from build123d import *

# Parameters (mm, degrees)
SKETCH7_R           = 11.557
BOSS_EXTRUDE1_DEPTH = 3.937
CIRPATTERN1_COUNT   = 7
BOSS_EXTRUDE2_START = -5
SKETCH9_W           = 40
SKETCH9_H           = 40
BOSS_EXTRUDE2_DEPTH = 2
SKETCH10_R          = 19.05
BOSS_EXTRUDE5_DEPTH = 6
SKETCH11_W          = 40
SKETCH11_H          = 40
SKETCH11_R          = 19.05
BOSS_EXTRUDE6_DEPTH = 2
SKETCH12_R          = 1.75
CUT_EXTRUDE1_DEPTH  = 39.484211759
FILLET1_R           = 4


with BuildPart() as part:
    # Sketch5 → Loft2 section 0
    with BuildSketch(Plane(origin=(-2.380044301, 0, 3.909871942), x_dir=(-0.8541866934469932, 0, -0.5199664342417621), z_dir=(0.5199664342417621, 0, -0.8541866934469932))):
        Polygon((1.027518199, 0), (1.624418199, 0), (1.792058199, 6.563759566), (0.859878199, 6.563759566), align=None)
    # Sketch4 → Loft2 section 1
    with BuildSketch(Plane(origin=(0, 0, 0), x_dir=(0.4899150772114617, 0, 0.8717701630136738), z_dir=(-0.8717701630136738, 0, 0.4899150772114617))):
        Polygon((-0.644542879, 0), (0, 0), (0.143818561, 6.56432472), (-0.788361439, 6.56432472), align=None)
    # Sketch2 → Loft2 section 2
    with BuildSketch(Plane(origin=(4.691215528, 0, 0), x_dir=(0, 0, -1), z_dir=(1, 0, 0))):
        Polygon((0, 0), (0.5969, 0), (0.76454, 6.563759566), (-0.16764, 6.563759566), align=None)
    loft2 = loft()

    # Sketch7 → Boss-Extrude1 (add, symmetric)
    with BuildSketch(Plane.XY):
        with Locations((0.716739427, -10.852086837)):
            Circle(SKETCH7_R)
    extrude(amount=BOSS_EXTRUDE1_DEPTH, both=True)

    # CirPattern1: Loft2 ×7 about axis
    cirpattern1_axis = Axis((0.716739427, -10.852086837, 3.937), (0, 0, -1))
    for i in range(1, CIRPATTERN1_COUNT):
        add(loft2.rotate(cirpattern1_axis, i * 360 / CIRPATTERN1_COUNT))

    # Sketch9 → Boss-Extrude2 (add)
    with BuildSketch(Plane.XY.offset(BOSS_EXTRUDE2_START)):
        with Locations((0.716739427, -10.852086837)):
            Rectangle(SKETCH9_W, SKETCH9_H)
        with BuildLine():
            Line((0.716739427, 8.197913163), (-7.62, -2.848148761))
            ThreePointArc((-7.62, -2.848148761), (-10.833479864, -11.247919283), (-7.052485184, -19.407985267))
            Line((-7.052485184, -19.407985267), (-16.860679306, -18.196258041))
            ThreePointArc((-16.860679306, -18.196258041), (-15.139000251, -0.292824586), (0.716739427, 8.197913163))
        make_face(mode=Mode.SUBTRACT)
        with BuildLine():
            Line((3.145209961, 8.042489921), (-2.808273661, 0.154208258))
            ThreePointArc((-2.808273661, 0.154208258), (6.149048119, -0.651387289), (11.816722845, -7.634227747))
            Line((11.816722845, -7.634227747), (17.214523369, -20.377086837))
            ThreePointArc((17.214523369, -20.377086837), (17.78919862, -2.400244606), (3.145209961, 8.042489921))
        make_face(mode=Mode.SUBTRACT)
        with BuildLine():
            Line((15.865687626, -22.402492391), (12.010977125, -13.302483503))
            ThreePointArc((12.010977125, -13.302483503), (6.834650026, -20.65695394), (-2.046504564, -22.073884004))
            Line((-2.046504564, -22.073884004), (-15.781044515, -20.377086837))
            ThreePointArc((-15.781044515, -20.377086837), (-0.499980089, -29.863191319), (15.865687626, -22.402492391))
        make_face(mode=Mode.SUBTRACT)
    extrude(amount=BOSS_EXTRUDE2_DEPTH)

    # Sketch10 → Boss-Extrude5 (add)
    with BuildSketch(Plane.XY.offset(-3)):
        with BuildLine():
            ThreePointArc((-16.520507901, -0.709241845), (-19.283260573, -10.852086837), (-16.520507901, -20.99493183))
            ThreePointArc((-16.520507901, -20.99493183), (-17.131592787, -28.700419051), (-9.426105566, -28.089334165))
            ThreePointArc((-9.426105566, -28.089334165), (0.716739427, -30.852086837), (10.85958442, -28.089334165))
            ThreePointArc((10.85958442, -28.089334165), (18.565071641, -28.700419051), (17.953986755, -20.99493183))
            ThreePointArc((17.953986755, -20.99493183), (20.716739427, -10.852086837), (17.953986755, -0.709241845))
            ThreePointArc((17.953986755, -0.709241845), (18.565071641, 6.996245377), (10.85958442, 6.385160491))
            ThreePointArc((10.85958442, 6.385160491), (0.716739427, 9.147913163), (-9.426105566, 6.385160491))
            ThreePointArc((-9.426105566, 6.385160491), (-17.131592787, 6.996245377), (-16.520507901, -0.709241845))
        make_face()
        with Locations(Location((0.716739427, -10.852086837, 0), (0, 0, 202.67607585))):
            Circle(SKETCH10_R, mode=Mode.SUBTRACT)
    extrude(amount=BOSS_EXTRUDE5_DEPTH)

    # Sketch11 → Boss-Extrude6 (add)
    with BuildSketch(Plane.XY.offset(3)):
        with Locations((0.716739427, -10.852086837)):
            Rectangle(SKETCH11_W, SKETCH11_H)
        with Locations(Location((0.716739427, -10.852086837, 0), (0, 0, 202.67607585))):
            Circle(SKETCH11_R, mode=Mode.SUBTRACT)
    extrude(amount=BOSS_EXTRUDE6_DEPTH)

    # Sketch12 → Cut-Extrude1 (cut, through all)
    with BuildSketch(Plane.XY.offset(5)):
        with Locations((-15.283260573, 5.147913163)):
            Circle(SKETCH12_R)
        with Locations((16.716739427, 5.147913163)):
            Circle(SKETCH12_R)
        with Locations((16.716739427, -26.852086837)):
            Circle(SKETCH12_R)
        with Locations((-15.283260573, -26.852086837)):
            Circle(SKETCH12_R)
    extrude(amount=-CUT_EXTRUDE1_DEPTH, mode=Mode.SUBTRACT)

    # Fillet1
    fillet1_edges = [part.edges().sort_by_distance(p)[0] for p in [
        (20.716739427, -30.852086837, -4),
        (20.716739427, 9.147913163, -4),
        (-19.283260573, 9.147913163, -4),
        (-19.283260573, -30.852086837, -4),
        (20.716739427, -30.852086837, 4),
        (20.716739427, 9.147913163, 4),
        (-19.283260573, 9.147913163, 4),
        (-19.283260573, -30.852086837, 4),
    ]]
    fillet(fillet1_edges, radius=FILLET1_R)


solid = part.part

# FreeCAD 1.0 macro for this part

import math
import FreeCAD as App
import Part
import Sketcher
from FreeCAD import Vector
Q = App.Units.Quantity


def edges_at(feature, points):
    """Names of the edges that pass closest to the given points."""
    edges = feature.Shape.Edges
    near = lambda p: min(range(len(edges)), key=lambda i: edges[i].distToShape(Part.Vertex(*p))[0])
    return sorted({f"Edge{near(p) + 1}" for p in points})

doc = App.newDocument("Part")
body = doc.addObject("PartDesign::Body", "Body")

# Sketch on an angled plane
sketch1 = body.newObject("Sketcher::SketchObject", "Sketch")
sketch1.Placement = App.Placement(Vector(-2.380044, 0, 3.909872), App.Rotation(Vector(-0.854186693, 0, -0.519966434), Vector(0, 0.999999999, 0), Vector(0.519966434, 0, -0.854186693), "ZXY"))
sketch1.addGeometry([
    Part.LineSegment(Vector(1, 0, 0), Vector(1.6, 0, 0)),
    Part.LineSegment(Vector(1.6, 0, 0), Vector(1.8, 6.6, 0)),
    Part.LineSegment(Vector(1.8, 6.6, 0), Vector(0.9, 6.6, 0)),
    Part.LineSegment(Vector(0.9, 6.6, 0), Vector(1, 0, 0)),
], False)
sketch1.addConstraint([
    Sketcher.Constraint("Coincident", 0, 2, 1, 1),
    Sketcher.Constraint("Coincident", 1, 2, 2, 1),
    Sketcher.Constraint("Coincident", 2, 2, 3, 1),
    Sketcher.Constraint("Coincident", 3, 2, 0, 1),
    Sketcher.Constraint("Horizontal", 0),
    Sketcher.Constraint("Horizontal", 2),
    Sketcher.Constraint("PointOnObject", 0, 2, -1),
    Sketcher.Constraint("Equal", 1, 3),
    Sketcher.Constraint("DistanceX", 0, 1, 0, 2, Q("0.5969 mm")),
    Sketcher.Constraint("Distance", 1, Q("6.5659 mm")),
    Sketcher.Constraint("DistanceX", 2, 2, 2, 1, Q("0.93218 mm")),
    Sketcher.Constraint("DistanceX", -1, 1, 0, 2, Q("1.624418 mm")),
])

# Sketch on an angled plane
sketch2 = body.newObject("Sketcher::SketchObject", "Sketch001")
sketch2.Placement = App.Placement(Vector(0, 0, 0), App.Rotation(Vector(0.489915077, 0, 0.871770163), Vector(0, 1, 0), Vector(-0.871770163, 0, 0.489915077), "ZXY"))
sketch2.addGeometry([
    Part.LineSegment(Vector(-0.6, 0, 0), Vector(0, 0, 0)),
    Part.LineSegment(Vector(0, 0, 0), Vector(0.1, 6.6, 0)),
    Part.LineSegment(Vector(0.1, 6.6, 0), Vector(-0.8, 6.6, 0)),
    Part.LineSegment(Vector(-0.8, 6.6, 0), Vector(-0.6, 0, 0)),
], False)
sketch2.addConstraint([
    Sketcher.Constraint("Coincident", 0, 2, 1, 1),
    Sketcher.Constraint("Coincident", 1, 2, 2, 1),
    Sketcher.Constraint("Coincident", 2, 2, 3, 1),
    Sketcher.Constraint("Coincident", 3, 2, 0, 1),
    Sketcher.Constraint("Horizontal", 0),
    Sketcher.Constraint("Horizontal", 2),
    Sketcher.Constraint("Coincident", 0, 2, -1, 1),
    Sketcher.Constraint("Equal", 1, 3),
    Sketcher.Constraint("Distance", 1, Q("6.5659 mm")),
    Sketcher.Constraint("DistanceX", 2, 2, 2, 1, Q("0.93218 mm")),
    Sketcher.Constraint("DistanceX", 0, 1, 0, 2, Q("0.644543 mm")),
])

# Sketch on YZ plane
sketch3 = body.newObject("Sketcher::SketchObject", "Sketch002")
sketch3.AttachmentSupport = (doc.getObject("YZ_Plane"), [""])
sketch3.MapMode = "FlatFace"
sketch3.AttachmentOffset = App.Placement(Vector(0, 0, 4.691216), App.Rotation())
sketch3.addGeometry([
    Part.LineSegment(Vector(0, 0, 0), Vector(0, -0.6, 0)),
    Part.LineSegment(Vector(0, -0.6, 0), Vector(6.6, -0.8, 0)),
    Part.LineSegment(Vector(6.6, -0.8, 0), Vector(6.6, 0.2, 0)),
    Part.LineSegment(Vector(6.6, 0.2, 0), Vector(0, 0, 0)),
], False)
sketch3.addConstraint([
    Sketcher.Constraint("Coincident", 0, 2, 1, 1),
    Sketcher.Constraint("Coincident", 1, 2, 2, 1),
    Sketcher.Constraint("Coincident", 2, 2, 3, 1),
    Sketcher.Constraint("Coincident", 3, 2, 0, 1),
    Sketcher.Constraint("Vertical", 0),
    Sketcher.Constraint("Vertical", 2),
    Sketcher.Constraint("Coincident", 3, 2, -1, 1),
    Sketcher.Constraint("Equal", 1, 3),
    Sketcher.Constraint("DistanceY", 0, 2, 0, 1, Q("0.5969 mm")),
    Sketcher.Constraint("Distance", 1, Q("6.5659 mm")),
    Sketcher.Constraint("DistanceY", 2, 1, 2, 2, Q("0.93218 mm")),
])

additiveloft = body.newObject("PartDesign::AdditiveLoft", "AdditiveLoft")
additiveloft.Profile = sketch1
additiveloft.Sections = [sketch2, sketch3]

# Sketch on XY plane
sketch4 = body.newObject("Sketcher::SketchObject", "Sketch003")
sketch4.AttachmentSupport = (doc.getObject("XY_Plane"), [""])
sketch4.MapMode = "FlatFace"
sketch4.addGeometry(Part.Circle(Vector(1, -11, 0), Vector(0, 0, 1), 12), False)
sketch4.addConstraint([
    Sketcher.Constraint("Diameter", 0, Q("23.114 mm")),
    Sketcher.Constraint("DistanceX", -1, 1, 0, 3, Q("0.716739 mm")),
    Sketcher.Constraint("DistanceY", 0, 3, -1, 1, Q("10.852087 mm")),
])
pad1 = body.newObject("PartDesign::Pad", "Pad")
pad1.Profile = sketch4
pad1.Length = 7.874
pad1.Midplane = True
doc.recompute()

datumline = body.newObject("PartDesign::Line", "DatumLine")
datumline.Placement = App.Placement(Vector(0.716739, -10.852087, 0), App.Rotation(Vector(0, 0, 1), Vector(0, 0, -1)))
polarpattern = body.newObject("PartDesign::PolarPattern", "PolarPattern")
polarpattern.Originals = [additiveloft]
polarpattern.Axis = (datumline, [""])
polarpattern.Angle = 360
polarpattern.Occurrences = 7
body.Tip = polarpattern

# Sketch on XY plane
sketch5 = body.newObject("Sketcher::SketchObject", "Sketch004")
sketch5.AttachmentSupport = (doc.getObject("XY_Plane"), [""])
sketch5.MapMode = "FlatFace"
sketch5.AttachmentOffset = App.Placement(Vector(0, 0, -5), App.Rotation())
sketch5.addGeometry([
    Part.LineSegment(Vector(-19, 9, 0), Vector(-19, -31, 0)),  # 0
    Part.LineSegment(Vector(-19, -31, 0), Vector(21, -31, 0)),  # 1
    Part.LineSegment(Vector(21, -31, 0), Vector(21, 9, 0)),  # 2
    Part.LineSegment(Vector(21, 9, 0), Vector(-19, 9, 0)),  # 3
    Part.LineSegment(Vector(12, -13, 0), Vector(16, -22, 0)),  # 4
    Part.ArcOfCircle(Part.Circle(Vector(1, -11, 0), Vector(0, 0, 1), 19), math.radians(-150), math.radians(-37)),  # 5
    Part.LineSegment(Vector(-16, -20, 0), Vector(-2, -22, 0)),  # 6
    Part.ArcOfCircle(Part.Circle(Vector(1, -11, 0), Vector(0, 0, 1), 12), math.radians(-104), math.radians(-12)),  # 7
    Part.ArcOfCircle(Part.Circle(Vector(1, -11, 0), Vector(0, 0, 1), 19), math.radians(90), math.radians(203)),  # 8
    Part.LineSegment(Vector(1, 8, 0), Vector(-8, -3, 0)),  # 9
    Part.ArcOfCircle(Part.Circle(Vector(1, -11, 0), Vector(0, 0, 1), 12), math.radians(136), math.radians(228)),  # 10
    Part.LineSegment(Vector(-7, -19, 0), Vector(-17, -18, 0)),  # 11
    Part.LineSegment(Vector(-3, 0, 0), Vector(3, 8, 0)),  # 12
    Part.ArcOfCircle(Part.Circle(Vector(1, -11, 0), Vector(0, 0, 1), 19), math.radians(-30), math.radians(83)),  # 13
    Part.LineSegment(Vector(17, -20, 0), Vector(12, -8, 0)),  # 14
    Part.ArcOfCircle(Part.Circle(Vector(1, -11, 0), Vector(0, 0, 1), 12), math.radians(16), math.radians(108)),  # 15
], False)
sketch5.addConstraint([
    Sketcher.Constraint("Coincident", 0, 2, 1, 1),
    Sketcher.Constraint("Coincident", 1, 2, 2, 1),
    Sketcher.Constraint("Coincident", 2, 2, 3, 1),
    Sketcher.Constraint("Coincident", 3, 2, 0, 1),
    Sketcher.Constraint("Coincident", 4, 2, 5, 2),
    Sketcher.Constraint("Coincident", 5, 1, 6, 1),
    Sketcher.Constraint("Coincident", 6, 2, 7, 1),
    Sketcher.Constraint("Coincident", 7, 2, 4, 1),
    Sketcher.Constraint("Coincident", 8, 1, 9, 1),
    Sketcher.Constraint("Coincident", 9, 2, 10, 1),
    Sketcher.Constraint("Coincident", 10, 2, 11, 1),
    Sketcher.Constraint("Coincident", 11, 2, 8, 2),
    Sketcher.Constraint("Coincident", 12, 2, 13, 2),
    Sketcher.Constraint("Coincident", 13, 1, 14, 1),
    Sketcher.Constraint("Coincident", 14, 2, 15, 1),
    Sketcher.Constraint("Coincident", 15, 2, 12, 1),
    Sketcher.Constraint("Vertical", 0),
    Sketcher.Constraint("Horizontal", 1),
    Sketcher.Constraint("Vertical", 2),
    Sketcher.Constraint("Horizontal", 3),
    Sketcher.Constraint("Coincident", 7, 3, 5, 3),
    Sketcher.Constraint("Coincident", 8, 3, 5, 3),
    Sketcher.Constraint("Coincident", 10, 3, 5, 3),
    Sketcher.Constraint("Coincident", 13, 3, 5, 3),
    Sketcher.Constraint("Coincident", 15, 3, 5, 3),
    Sketcher.Constraint("Equal", 5, 8),
    Sketcher.Constraint("Equal", 7, 10),
    Sketcher.Constraint("Equal", 8, 13),
    Sketcher.Constraint("Equal", 10, 15),
    Sketcher.Constraint("Parallel", 6, 11),
    Sketcher.Constraint("Parallel", 9, 12),
    Sketcher.Constraint("Parallel", 4, 14),
    Sketcher.Constraint("Horizontal", 5, 1, 13, 1),
    Sketcher.Constraint("Vertical", 15, 3, 8, 1),
    Sketcher.Constraint("Equal", 3, 0),
    Sketcher.Constraint("Equal", 6, 9),
    Sketcher.Constraint("Equal", 4, 11),
    Sketcher.Constraint("Equal", 11, 12),
    Sketcher.Constraint("Equal", 9, 14),
    Sketcher.Constraint("DistanceX", 1, 1, 1, 2, Q("40 mm")),
    Sketcher.Constraint("Radius", 5, Q("19.05 mm")),
    Sketcher.Constraint("Radius", 7, Q("11.557 mm")),
    Sketcher.Constraint("DistanceX", 0, 2, 5, 3, Q("20 mm")),
    Sketcher.Constraint("DistanceY", 0, 2, 5, 3, Q("20 mm")),
    Sketcher.Constraint("DistanceX", 9, 2, -1, 1, Q("7.62 mm")),
    Sketcher.Constraint("DistanceY", 0, 2, 5, 1, Q("10.475 mm")),
    Sketcher.Constraint("DistanceY", 6, 2, 10, 2, Q("2.665899 mm")),
    Sketcher.Constraint("DistanceY", 5, 1, 10, 2, Q("0.969102 mm")),
    Sketcher.Constraint("DistanceY", 9, 2, -1, 1, Q("2.848149 mm")),
])
pad2 = body.newObject("PartDesign::Pad", "Pad001")
pad2.Profile = sketch5
pad2.Length = 2

# Sketch on XY plane
sketch6 = body.newObject("Sketcher::SketchObject", "Sketch005")
sketch6.AttachmentSupport = (doc.getObject("XY_Plane"), [""])
sketch6.MapMode = "FlatFace"
sketch6.AttachmentOffset = App.Placement(Vector(0, 0, -3), App.Rotation())
sketch6.addGeometry([
    Part.ArcOfCircle(Part.Circle(Vector(1, -11, 0), Vector(0, 0, 1), 20), math.radians(150), math.radians(210)),  # 0
    Part.ArcOfCircle(Part.Circle(Vector(-14, -25, 0), Vector(0, 0, 1), 5), math.radians(126), math.radians(324)),  # 1
    Part.ArcOfCircle(Part.Circle(Vector(1, -11, 0), Vector(0, 0, 1), 20), math.radians(-120), math.radians(-60)),  # 2
    Part.ArcOfCircle(Part.Circle(Vector(15, -25, 0), Vector(0, 0, 1), 5), math.radians(-144), math.radians(54)),  # 3
    Part.ArcOfCircle(Part.Circle(Vector(1, -11, 0), Vector(0, 0, 1), 20), math.radians(-30), math.radians(30)),  # 4
    Part.ArcOfCircle(Part.Circle(Vector(15, 3, 0), Vector(0, 0, 1), 5), math.radians(-54), math.radians(144)),  # 5
    Part.ArcOfCircle(Part.Circle(Vector(1, -11, 0), Vector(0, 0, 1), 20), math.radians(60), math.radians(120)),  # 6
    Part.ArcOfCircle(Part.Circle(Vector(-14, 3, 0), Vector(0, 0, 1), 5), math.radians(36), math.radians(234)),  # 7
    Part.Circle(Vector(1, -11, 0), Vector(0, 0, 1), 19),  # 8
], False)
sketch6.addConstraint([
    Sketcher.Constraint("Coincident", 0, 2, 1, 1),
    Sketcher.Constraint("Coincident", 1, 2, 2, 1),
    Sketcher.Constraint("Coincident", 2, 2, 3, 1),
    Sketcher.Constraint("Coincident", 3, 2, 4, 1),
    Sketcher.Constraint("Coincident", 4, 2, 5, 1),
    Sketcher.Constraint("Coincident", 5, 2, 6, 1),
    Sketcher.Constraint("Coincident", 6, 2, 7, 1),
    Sketcher.Constraint("Coincident", 7, 2, 0, 1),
    Sketcher.Constraint("Coincident", 2, 3, 0, 3),
    Sketcher.Constraint("Coincident", 4, 3, 0, 3),
    Sketcher.Constraint("Coincident", 6, 3, 0, 3),
    Sketcher.Constraint("Coincident", 8, 3, 0, 3),
    Sketcher.Constraint("Equal", 0, 2),
    Sketcher.Constraint("Equal", 1, 3),
    Sketcher.Constraint("Equal", 2, 4),
    Sketcher.Constraint("Equal", 3, 5),
    Sketcher.Constraint("Equal", 4, 6),
    Sketcher.Constraint("Equal", 5, 7),
    Sketcher.Constraint("Horizontal", 1, 3, 3, 3),
    Sketcher.Constraint("Horizontal", 5, 3, 7, 3),
    Sketcher.Constraint("Horizontal", 1, 2, 2, 2),
    Sketcher.Constraint("Horizontal", 5, 2, 6, 2),
    Sketcher.Constraint("Vertical", 3, 3, 5, 3),
    Sketcher.Constraint("Vertical", 3, 2, 4, 2),
    Sketcher.Constraint("Radius", 0, Q("20 mm")),
    Sketcher.Constraint("Diameter", 8, Q("38.1 mm")),
    Sketcher.Constraint("Radius", 1, Q("5.08 mm")),
    Sketcher.Constraint("DistanceX", -1, 1, 0, 3, Q("0.716739 mm")),
    Sketcher.Constraint("DistanceX", 1, 3, -1, 1, Q("13.53949 mm")),
    Sketcher.Constraint("DistanceY", 0, 2, -1, 1, Q("20.994932 mm")),
    Sketcher.Constraint("DistanceY", 4, 2, -1, 1, Q("0.709242 mm")),
])
pad3 = body.newObject("PartDesign::Pad", "Pad002")
pad3.Profile = sketch6
pad3.Length = 6

# Sketch on XY plane
sketch7 = body.newObject("Sketcher::SketchObject", "Sketch006")
sketch7.AttachmentSupport = (doc.getObject("XY_Plane"), [""])
sketch7.MapMode = "FlatFace"
sketch7.AttachmentOffset = App.Placement(Vector(0, 0, 3), App.Rotation())
sketch7.addGeometry([
    Part.LineSegment(Vector(-19, 9, 0), Vector(-19, -31, 0)),  # 0
    Part.LineSegment(Vector(-19, -31, 0), Vector(21, -31, 0)),  # 1
    Part.LineSegment(Vector(21, -31, 0), Vector(21, 9, 0)),  # 2
    Part.LineSegment(Vector(21, 9, 0), Vector(-19, 9, 0)),  # 3
    Part.Circle(Vector(1, -11, 0), Vector(0, 0, 1), 19),  # 4
], False)
sketch7.addConstraint([
    Sketcher.Constraint("Coincident", 0, 2, 1, 1),
    Sketcher.Constraint("Coincident", 1, 2, 2, 1),
    Sketcher.Constraint("Coincident", 2, 2, 3, 1),
    Sketcher.Constraint("Coincident", 3, 2, 0, 1),
    Sketcher.Constraint("Vertical", 0),
    Sketcher.Constraint("Horizontal", 1),
    Sketcher.Constraint("Vertical", 2),
    Sketcher.Constraint("Horizontal", 3),
    Sketcher.Constraint("Equal", 3, 0),
    Sketcher.Constraint("Diameter", 4, Q("38.1 mm")),
    Sketcher.Constraint("DistanceX", 1, 1, 1, 2, Q("40 mm")),
    Sketcher.Constraint("DistanceX", 0, 2, 4, 3, Q("20 mm")),
    Sketcher.Constraint("DistanceY", 0, 2, 4, 3, Q("20 mm")),
    Sketcher.Constraint("DistanceX", -1, 1, 4, 3, Q("0.716739 mm")),
    Sketcher.Constraint("DistanceY", 4, 3, -1, 1, Q("10.852087 mm")),
])
pad4 = body.newObject("PartDesign::Pad", "Pad003")
pad4.Profile = sketch7
pad4.Length = 2

# Sketch on XY plane
sketch8 = body.newObject("Sketcher::SketchObject", "Sketch007")
sketch8.AttachmentSupport = (doc.getObject("XY_Plane"), [""])
sketch8.MapMode = "FlatFace"
sketch8.AttachmentOffset = App.Placement(Vector(0, 0, 5), App.Rotation())
sketch8.addGeometry([
    Part.Circle(Vector(-15.3, 5.1, 0), Vector(0, 0, 1), 1.8),
    Part.Circle(Vector(16.7, 5.1, 0), Vector(0, 0, 1), 1.8),
    Part.Circle(Vector(16.7, -26.9, 0), Vector(0, 0, 1), 1.8),
    Part.Circle(Vector(-15.3, -26.9, 0), Vector(0, 0, 1), 1.8),
], False)
sketch8.addConstraint([
    Sketcher.Constraint("Equal", 0, 1),
    Sketcher.Constraint("Equal", 1, 2),
    Sketcher.Constraint("Equal", 2, 3),
    Sketcher.Constraint("Horizontal", 0, 3, 1, 3),
    Sketcher.Constraint("Horizontal", 2, 3, 3, 3),
    Sketcher.Constraint("Vertical", 1, 3, 2, 3),
    Sketcher.Constraint("Vertical", 0, 3, 3, 3),
    Sketcher.Constraint("Diameter", 0, Q("3.5 mm")),
    Sketcher.Constraint("DistanceX", 0, 3, 1, 3, Q("32 mm")),
    Sketcher.Constraint("DistanceY", 2, 3, 1, 3, Q("32 mm")),
    Sketcher.Constraint("DistanceX", 0, 3, -1, 1, Q("15.283261 mm")),
    Sketcher.Constraint("DistanceY", -1, 1, 0, 3, Q("5.147913 mm")),
])
pocket1 = body.newObject("PartDesign::Pocket", "Pocket")
pocket1.Profile = sketch8
pocket1.Type = "ThroughAll"
doc.recompute()

fillet = body.newObject("PartDesign::Fillet", "Fillet")
fillet.Base = (pocket1, edges_at(pocket1, [
    (20.717, -30.852, -4),
    (20.717, 9.148, -4),
    (-19.283, 9.148, -4),
    (-19.283, -30.852, -4),
    (20.717, -30.852, 4),
    (20.717, 9.148, 4),
    (-19.283, 9.148, 4),
    (-19.283, -30.852, 4),
]))
fillet.Radius = 4

doc.recompute()
